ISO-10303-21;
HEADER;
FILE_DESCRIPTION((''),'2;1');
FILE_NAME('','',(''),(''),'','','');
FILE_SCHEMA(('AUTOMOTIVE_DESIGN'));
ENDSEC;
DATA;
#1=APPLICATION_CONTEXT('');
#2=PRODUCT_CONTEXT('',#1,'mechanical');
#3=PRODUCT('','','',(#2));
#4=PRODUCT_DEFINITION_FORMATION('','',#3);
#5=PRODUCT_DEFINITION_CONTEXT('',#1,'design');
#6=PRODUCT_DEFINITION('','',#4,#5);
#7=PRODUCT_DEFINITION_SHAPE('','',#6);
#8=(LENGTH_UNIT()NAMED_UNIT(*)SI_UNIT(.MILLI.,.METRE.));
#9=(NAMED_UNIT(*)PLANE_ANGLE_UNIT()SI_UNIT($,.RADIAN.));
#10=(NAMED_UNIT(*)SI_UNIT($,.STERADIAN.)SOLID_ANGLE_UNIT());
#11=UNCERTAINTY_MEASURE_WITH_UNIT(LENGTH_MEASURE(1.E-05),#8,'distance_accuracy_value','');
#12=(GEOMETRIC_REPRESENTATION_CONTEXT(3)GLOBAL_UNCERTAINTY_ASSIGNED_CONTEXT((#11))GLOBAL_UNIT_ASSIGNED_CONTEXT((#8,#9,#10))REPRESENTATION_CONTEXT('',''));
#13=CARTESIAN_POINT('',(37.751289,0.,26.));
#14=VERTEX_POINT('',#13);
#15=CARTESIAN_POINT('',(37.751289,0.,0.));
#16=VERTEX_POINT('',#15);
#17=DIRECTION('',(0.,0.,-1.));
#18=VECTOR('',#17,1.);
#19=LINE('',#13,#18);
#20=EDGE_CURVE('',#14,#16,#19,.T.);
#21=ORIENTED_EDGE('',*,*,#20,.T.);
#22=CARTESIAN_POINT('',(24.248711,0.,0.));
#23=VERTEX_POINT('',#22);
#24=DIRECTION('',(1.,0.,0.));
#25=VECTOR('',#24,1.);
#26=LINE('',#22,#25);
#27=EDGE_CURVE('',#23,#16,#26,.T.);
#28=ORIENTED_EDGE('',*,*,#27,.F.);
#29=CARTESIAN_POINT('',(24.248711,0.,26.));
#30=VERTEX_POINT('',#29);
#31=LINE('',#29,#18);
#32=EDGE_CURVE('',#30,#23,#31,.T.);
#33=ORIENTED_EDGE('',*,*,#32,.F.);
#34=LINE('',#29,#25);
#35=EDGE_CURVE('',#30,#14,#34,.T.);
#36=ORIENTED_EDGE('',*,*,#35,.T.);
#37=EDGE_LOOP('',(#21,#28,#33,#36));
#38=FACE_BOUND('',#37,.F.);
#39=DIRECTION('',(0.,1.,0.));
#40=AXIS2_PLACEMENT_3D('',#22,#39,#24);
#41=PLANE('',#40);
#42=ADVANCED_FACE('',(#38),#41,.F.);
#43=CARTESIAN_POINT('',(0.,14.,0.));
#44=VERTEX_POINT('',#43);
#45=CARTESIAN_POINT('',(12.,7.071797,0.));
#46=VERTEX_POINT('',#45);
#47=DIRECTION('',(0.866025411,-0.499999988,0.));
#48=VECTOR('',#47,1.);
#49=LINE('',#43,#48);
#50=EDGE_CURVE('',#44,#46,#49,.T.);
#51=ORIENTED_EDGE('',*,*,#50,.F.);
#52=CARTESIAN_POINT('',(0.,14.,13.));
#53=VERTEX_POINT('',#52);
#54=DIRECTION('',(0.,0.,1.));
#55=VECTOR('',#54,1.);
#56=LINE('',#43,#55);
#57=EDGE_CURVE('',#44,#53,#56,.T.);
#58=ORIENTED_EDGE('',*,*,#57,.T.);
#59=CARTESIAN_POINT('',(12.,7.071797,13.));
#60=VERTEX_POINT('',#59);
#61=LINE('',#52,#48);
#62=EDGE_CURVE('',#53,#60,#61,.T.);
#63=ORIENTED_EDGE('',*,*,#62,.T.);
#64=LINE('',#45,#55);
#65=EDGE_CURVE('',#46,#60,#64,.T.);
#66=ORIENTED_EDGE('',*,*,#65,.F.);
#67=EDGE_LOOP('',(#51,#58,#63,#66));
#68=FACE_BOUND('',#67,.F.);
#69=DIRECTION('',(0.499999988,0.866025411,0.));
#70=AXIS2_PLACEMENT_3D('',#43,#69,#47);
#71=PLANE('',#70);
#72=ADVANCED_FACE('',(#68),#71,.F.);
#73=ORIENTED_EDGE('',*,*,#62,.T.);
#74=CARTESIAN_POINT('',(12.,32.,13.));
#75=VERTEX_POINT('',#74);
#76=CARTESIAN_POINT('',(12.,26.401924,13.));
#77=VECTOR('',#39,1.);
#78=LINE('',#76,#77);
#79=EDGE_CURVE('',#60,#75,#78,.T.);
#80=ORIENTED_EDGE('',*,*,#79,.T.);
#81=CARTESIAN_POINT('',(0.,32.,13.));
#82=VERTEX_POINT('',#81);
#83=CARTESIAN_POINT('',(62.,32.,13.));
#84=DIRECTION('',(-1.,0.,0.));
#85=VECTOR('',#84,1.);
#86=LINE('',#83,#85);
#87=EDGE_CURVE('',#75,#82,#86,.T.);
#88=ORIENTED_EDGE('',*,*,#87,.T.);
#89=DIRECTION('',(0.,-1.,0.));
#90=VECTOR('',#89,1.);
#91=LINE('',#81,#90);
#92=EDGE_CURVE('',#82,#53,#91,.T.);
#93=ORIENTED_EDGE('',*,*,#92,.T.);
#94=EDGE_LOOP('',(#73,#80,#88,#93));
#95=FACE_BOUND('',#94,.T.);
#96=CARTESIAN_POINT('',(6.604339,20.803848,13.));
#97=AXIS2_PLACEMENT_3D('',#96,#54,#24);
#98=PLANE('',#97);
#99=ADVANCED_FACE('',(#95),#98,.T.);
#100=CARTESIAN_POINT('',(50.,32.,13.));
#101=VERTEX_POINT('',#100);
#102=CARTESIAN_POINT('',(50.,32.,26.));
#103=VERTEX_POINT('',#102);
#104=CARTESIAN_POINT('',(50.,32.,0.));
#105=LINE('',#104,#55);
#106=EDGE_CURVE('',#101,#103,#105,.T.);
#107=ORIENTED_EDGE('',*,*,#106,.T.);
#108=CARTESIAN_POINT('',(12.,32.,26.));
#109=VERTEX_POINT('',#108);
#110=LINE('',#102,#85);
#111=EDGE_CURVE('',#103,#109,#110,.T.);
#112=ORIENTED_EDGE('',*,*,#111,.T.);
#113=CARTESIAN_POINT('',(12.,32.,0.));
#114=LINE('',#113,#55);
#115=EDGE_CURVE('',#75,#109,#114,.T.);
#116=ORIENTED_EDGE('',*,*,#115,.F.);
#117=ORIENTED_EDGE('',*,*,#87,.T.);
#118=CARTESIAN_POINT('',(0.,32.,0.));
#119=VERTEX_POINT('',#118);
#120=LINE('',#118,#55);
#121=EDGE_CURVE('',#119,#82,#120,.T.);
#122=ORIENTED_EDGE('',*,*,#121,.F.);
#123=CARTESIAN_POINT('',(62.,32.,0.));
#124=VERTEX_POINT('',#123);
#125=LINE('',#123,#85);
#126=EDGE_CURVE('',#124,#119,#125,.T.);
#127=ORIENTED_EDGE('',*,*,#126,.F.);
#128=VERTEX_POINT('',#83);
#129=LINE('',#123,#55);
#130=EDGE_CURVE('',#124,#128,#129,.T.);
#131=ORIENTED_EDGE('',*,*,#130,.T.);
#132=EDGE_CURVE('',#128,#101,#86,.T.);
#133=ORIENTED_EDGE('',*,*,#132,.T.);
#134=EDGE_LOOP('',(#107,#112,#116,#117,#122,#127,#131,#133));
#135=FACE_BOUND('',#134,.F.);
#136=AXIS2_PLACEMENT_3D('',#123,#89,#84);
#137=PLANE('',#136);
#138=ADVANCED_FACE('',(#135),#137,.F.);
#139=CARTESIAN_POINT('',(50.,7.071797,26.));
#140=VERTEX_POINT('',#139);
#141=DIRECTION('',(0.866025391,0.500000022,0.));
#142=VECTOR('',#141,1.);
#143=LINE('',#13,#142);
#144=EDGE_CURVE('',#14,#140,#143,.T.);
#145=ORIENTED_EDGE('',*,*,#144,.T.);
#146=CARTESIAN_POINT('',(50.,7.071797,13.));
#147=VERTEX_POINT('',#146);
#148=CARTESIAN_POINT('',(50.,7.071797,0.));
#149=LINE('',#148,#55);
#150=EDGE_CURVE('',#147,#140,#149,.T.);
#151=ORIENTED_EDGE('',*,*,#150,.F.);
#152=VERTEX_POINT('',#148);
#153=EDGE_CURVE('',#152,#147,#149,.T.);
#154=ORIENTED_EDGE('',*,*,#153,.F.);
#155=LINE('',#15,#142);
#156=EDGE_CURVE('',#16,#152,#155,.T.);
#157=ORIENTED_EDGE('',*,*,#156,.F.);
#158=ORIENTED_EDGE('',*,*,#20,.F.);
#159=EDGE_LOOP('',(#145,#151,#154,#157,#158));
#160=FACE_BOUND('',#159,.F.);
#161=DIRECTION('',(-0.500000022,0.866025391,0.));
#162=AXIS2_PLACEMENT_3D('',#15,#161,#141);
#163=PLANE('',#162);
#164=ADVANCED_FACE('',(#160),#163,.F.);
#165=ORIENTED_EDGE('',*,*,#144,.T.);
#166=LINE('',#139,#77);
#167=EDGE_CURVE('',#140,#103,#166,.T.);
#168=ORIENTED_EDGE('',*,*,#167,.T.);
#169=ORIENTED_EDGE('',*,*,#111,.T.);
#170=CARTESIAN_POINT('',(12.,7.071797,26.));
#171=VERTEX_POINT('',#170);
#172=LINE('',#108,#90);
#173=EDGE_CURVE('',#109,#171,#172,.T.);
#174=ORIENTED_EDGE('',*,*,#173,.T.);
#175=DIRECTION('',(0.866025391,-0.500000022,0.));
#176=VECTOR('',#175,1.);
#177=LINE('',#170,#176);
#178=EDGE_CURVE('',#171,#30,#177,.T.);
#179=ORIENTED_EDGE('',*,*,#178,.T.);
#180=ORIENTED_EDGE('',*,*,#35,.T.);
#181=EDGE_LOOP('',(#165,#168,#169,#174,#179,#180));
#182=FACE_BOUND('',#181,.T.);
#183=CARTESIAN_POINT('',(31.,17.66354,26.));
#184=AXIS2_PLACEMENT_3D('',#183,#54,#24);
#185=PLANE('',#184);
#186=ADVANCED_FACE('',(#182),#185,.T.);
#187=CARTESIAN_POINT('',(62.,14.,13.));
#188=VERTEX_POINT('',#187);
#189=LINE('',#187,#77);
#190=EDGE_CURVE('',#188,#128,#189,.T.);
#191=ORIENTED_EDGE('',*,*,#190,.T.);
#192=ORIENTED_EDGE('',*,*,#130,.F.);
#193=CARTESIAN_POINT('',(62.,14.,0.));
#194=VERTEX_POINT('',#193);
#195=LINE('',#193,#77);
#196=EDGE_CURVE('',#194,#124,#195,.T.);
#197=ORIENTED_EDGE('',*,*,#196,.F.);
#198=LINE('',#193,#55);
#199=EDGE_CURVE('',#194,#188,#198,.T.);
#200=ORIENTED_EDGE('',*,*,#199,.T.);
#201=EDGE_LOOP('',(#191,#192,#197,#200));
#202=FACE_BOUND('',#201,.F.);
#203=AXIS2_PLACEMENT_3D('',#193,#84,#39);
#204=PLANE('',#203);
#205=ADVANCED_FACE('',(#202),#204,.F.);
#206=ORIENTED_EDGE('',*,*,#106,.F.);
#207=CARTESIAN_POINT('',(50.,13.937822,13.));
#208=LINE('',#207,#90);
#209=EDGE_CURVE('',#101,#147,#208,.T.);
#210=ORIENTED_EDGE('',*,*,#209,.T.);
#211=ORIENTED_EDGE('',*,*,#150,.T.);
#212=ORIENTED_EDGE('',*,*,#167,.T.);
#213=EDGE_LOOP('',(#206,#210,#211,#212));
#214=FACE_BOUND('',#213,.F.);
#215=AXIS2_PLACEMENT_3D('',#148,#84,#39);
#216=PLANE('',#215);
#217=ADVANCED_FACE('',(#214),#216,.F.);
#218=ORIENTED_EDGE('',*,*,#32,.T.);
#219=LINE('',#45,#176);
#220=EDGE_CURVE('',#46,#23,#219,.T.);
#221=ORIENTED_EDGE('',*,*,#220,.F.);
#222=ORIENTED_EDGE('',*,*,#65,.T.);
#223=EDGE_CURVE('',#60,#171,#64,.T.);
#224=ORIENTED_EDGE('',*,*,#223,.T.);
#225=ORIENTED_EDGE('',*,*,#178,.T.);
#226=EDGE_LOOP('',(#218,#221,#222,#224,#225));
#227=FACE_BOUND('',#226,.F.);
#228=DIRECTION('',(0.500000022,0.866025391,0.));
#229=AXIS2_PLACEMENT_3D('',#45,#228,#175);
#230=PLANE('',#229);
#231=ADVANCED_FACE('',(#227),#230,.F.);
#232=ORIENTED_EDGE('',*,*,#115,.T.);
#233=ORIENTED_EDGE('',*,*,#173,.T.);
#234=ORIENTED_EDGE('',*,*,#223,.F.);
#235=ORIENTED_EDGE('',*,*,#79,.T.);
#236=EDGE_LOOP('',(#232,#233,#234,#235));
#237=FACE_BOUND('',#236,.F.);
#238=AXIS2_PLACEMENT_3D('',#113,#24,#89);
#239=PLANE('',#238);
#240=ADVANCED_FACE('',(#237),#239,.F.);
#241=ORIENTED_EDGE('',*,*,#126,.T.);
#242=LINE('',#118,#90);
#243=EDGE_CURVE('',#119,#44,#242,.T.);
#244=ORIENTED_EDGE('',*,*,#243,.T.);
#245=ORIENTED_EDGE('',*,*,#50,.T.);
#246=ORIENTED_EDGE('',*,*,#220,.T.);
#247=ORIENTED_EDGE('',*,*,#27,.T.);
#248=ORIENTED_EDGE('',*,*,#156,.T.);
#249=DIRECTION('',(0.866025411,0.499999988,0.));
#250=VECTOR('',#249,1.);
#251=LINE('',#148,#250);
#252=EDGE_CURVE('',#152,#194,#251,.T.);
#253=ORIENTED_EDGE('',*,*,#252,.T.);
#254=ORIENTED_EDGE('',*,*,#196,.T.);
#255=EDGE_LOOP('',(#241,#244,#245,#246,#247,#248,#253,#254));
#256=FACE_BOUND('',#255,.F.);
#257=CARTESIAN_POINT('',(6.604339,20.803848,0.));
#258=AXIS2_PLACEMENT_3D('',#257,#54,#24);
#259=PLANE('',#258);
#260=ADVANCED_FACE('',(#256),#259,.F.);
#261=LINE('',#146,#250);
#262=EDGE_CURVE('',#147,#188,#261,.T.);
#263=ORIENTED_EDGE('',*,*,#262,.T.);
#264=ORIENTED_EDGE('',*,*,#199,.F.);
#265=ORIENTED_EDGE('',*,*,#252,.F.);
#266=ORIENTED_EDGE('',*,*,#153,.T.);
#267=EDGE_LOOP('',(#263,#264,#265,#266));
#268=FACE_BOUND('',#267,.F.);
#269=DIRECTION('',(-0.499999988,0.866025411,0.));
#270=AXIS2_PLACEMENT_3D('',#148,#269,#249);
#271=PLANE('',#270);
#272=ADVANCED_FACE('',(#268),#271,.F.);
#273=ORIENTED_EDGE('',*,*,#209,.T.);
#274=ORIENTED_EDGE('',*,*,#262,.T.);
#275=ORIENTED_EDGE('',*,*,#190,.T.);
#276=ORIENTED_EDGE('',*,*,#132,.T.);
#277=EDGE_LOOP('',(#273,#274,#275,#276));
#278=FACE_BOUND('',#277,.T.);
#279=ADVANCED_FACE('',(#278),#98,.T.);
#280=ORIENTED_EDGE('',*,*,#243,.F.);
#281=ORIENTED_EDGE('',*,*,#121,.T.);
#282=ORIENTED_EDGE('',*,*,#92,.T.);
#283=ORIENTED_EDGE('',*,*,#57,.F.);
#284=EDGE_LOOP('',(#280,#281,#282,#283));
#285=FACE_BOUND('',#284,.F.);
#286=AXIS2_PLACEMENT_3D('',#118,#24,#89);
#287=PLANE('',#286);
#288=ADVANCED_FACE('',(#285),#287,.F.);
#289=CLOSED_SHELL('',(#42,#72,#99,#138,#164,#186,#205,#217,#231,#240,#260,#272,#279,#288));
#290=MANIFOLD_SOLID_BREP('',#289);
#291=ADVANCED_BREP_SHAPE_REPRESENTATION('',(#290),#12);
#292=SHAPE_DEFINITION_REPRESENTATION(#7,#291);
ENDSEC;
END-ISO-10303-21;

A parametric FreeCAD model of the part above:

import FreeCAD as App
import Part
import Sketcher
Q = App.Units.Quantity


def add_polygon(sketch, points):
    """Adds a closed chain of lines whose ends are joined by coincident constraints."""
    first, n = sketch.GeometryCount, len(points)
    for a, b in zip(points, points[1:] + points[:1]):
        sketch.addGeometry(Part.LineSegment(App.Vector(*a, 0), App.Vector(*b, 0)), False)
    for i in range(n):
        sketch.addConstraint(Sketcher.Constraint("Coincident", first + i, 2, first + (i + 1) % n, 1))

doc = App.newDocument("Part")
body = doc.addObject("PartDesign::Body", "Body")

# Sketch on XY plane
sketch1 = body.newObject("Sketcher::SketchObject", "Sketch")
sketch1.AttachmentSupport = (doc.getObject("XY_Plane"), [""])
sketch1.MapMode = "FlatFace"
add_polygon(sketch1, [(0, 32), (0, 14), (12, 7), (24, 0), (38, 0), (50, 7), (62, 14), (62, 32)])  # lines 0-7
sketch1.addConstraint(Sketcher.Constraint("Vertical", 0))
sketch1.addConstraint(Sketcher.Constraint("Horizontal", 3))
sketch1.addConstraint(Sketcher.Constraint("Vertical", 6))
sketch1.addConstraint(Sketcher.Constraint("Horizontal", 7))
sketch1.addConstraint(Sketcher.Constraint("PointOnObject", 0, 2, -2))
sketch1.addConstraint(Sketcher.Constraint("PointOnObject", 2, 2, -1))
sketch1.addConstraint(Sketcher.Constraint("Parallel", 1, 2))
sketch1.addConstraint(Sketcher.Constraint("Parallel", 4, 5))
sketch1.addConstraint(Sketcher.Constraint("Horizontal", 1, 2, 4, 2))
sketch1.addConstraint(Sketcher.Constraint("Horizontal", 0, 2, 5, 2))
sketch1.addConstraint(Sketcher.Constraint("Equal", 2, 4))
sketch1.addConstraint(Sketcher.Constraint("DistanceX", 7, 2, 7, 1, Q("62 mm")))
sketch1.addConstraint(Sketcher.Constraint("DistanceY", 0, 2, 0, 1, Q("18 mm")))
sketch1.addConstraint(Sketcher.Constraint("Angle", 1, Q("-29.999999 deg")))
sketch1.addConstraint(Sketcher.Constraint("DistanceY", -1, 1, 0, 2, Q("14 mm")))
sketch1.addConstraint(Sketcher.Constraint("DistanceX", -1, 1, 1, 2, Q("12 mm")))
pad1 = body.newObject("PartDesign::Pad", "Pad")
pad1.Profile = sketch1
pad1.Length = 13

# Sketch on XY plane
sketch2 = body.newObject("Sketcher::SketchObject", "Sketch001")
sketch2.AttachmentSupport = (doc.getObject("XY_Plane"), [""])
sketch2.MapMode = "FlatFace"
add_polygon(sketch2, [(12, 7), (24, 0), (38, 0), (50, 7), (50, 32), (12, 32)])  # lines 0-5
sketch2.addConstraint(Sketcher.Constraint("Horizontal", 1))
sketch2.addConstraint(Sketcher.Constraint("Vertical", 3))
sketch2.addConstraint(Sketcher.Constraint("Horizontal", 4))
sketch2.addConstraint(Sketcher.Constraint("Vertical", 5))
sketch2.addConstraint(Sketcher.Constraint("PointOnObject", 0, 2, -1))
sketch2.addConstraint(Sketcher.Constraint("Horizontal", 2, 2, 5, 2))
sketch2.addConstraint(Sketcher.Constraint("Equal", 0, 2))
sketch2.addConstraint(Sketcher.Constraint("DistanceX", 4, 2, 4, 1, Q("38 mm")))
sketch2.addConstraint(Sketcher.Constraint("Angle", 0, Q("-30.000001 deg")))
sketch2.addConstraint(Sketcher.Constraint("DistanceX", -1, 1, 2, 2, Q("50 mm")))
sketch2.addConstraint(Sketcher.Constraint("DistanceY", -1, 1, 3, 2, Q("32 mm")))
sketch2.addConstraint(Sketcher.Constraint("DistanceX", 1, 1, 1, 2, Q("13.502578 mm")))
pad2 = body.newObject("PartDesign::Pad", "Pad001")
pad2.Profile = sketch2
pad2.Length = 26

doc.recompute()
